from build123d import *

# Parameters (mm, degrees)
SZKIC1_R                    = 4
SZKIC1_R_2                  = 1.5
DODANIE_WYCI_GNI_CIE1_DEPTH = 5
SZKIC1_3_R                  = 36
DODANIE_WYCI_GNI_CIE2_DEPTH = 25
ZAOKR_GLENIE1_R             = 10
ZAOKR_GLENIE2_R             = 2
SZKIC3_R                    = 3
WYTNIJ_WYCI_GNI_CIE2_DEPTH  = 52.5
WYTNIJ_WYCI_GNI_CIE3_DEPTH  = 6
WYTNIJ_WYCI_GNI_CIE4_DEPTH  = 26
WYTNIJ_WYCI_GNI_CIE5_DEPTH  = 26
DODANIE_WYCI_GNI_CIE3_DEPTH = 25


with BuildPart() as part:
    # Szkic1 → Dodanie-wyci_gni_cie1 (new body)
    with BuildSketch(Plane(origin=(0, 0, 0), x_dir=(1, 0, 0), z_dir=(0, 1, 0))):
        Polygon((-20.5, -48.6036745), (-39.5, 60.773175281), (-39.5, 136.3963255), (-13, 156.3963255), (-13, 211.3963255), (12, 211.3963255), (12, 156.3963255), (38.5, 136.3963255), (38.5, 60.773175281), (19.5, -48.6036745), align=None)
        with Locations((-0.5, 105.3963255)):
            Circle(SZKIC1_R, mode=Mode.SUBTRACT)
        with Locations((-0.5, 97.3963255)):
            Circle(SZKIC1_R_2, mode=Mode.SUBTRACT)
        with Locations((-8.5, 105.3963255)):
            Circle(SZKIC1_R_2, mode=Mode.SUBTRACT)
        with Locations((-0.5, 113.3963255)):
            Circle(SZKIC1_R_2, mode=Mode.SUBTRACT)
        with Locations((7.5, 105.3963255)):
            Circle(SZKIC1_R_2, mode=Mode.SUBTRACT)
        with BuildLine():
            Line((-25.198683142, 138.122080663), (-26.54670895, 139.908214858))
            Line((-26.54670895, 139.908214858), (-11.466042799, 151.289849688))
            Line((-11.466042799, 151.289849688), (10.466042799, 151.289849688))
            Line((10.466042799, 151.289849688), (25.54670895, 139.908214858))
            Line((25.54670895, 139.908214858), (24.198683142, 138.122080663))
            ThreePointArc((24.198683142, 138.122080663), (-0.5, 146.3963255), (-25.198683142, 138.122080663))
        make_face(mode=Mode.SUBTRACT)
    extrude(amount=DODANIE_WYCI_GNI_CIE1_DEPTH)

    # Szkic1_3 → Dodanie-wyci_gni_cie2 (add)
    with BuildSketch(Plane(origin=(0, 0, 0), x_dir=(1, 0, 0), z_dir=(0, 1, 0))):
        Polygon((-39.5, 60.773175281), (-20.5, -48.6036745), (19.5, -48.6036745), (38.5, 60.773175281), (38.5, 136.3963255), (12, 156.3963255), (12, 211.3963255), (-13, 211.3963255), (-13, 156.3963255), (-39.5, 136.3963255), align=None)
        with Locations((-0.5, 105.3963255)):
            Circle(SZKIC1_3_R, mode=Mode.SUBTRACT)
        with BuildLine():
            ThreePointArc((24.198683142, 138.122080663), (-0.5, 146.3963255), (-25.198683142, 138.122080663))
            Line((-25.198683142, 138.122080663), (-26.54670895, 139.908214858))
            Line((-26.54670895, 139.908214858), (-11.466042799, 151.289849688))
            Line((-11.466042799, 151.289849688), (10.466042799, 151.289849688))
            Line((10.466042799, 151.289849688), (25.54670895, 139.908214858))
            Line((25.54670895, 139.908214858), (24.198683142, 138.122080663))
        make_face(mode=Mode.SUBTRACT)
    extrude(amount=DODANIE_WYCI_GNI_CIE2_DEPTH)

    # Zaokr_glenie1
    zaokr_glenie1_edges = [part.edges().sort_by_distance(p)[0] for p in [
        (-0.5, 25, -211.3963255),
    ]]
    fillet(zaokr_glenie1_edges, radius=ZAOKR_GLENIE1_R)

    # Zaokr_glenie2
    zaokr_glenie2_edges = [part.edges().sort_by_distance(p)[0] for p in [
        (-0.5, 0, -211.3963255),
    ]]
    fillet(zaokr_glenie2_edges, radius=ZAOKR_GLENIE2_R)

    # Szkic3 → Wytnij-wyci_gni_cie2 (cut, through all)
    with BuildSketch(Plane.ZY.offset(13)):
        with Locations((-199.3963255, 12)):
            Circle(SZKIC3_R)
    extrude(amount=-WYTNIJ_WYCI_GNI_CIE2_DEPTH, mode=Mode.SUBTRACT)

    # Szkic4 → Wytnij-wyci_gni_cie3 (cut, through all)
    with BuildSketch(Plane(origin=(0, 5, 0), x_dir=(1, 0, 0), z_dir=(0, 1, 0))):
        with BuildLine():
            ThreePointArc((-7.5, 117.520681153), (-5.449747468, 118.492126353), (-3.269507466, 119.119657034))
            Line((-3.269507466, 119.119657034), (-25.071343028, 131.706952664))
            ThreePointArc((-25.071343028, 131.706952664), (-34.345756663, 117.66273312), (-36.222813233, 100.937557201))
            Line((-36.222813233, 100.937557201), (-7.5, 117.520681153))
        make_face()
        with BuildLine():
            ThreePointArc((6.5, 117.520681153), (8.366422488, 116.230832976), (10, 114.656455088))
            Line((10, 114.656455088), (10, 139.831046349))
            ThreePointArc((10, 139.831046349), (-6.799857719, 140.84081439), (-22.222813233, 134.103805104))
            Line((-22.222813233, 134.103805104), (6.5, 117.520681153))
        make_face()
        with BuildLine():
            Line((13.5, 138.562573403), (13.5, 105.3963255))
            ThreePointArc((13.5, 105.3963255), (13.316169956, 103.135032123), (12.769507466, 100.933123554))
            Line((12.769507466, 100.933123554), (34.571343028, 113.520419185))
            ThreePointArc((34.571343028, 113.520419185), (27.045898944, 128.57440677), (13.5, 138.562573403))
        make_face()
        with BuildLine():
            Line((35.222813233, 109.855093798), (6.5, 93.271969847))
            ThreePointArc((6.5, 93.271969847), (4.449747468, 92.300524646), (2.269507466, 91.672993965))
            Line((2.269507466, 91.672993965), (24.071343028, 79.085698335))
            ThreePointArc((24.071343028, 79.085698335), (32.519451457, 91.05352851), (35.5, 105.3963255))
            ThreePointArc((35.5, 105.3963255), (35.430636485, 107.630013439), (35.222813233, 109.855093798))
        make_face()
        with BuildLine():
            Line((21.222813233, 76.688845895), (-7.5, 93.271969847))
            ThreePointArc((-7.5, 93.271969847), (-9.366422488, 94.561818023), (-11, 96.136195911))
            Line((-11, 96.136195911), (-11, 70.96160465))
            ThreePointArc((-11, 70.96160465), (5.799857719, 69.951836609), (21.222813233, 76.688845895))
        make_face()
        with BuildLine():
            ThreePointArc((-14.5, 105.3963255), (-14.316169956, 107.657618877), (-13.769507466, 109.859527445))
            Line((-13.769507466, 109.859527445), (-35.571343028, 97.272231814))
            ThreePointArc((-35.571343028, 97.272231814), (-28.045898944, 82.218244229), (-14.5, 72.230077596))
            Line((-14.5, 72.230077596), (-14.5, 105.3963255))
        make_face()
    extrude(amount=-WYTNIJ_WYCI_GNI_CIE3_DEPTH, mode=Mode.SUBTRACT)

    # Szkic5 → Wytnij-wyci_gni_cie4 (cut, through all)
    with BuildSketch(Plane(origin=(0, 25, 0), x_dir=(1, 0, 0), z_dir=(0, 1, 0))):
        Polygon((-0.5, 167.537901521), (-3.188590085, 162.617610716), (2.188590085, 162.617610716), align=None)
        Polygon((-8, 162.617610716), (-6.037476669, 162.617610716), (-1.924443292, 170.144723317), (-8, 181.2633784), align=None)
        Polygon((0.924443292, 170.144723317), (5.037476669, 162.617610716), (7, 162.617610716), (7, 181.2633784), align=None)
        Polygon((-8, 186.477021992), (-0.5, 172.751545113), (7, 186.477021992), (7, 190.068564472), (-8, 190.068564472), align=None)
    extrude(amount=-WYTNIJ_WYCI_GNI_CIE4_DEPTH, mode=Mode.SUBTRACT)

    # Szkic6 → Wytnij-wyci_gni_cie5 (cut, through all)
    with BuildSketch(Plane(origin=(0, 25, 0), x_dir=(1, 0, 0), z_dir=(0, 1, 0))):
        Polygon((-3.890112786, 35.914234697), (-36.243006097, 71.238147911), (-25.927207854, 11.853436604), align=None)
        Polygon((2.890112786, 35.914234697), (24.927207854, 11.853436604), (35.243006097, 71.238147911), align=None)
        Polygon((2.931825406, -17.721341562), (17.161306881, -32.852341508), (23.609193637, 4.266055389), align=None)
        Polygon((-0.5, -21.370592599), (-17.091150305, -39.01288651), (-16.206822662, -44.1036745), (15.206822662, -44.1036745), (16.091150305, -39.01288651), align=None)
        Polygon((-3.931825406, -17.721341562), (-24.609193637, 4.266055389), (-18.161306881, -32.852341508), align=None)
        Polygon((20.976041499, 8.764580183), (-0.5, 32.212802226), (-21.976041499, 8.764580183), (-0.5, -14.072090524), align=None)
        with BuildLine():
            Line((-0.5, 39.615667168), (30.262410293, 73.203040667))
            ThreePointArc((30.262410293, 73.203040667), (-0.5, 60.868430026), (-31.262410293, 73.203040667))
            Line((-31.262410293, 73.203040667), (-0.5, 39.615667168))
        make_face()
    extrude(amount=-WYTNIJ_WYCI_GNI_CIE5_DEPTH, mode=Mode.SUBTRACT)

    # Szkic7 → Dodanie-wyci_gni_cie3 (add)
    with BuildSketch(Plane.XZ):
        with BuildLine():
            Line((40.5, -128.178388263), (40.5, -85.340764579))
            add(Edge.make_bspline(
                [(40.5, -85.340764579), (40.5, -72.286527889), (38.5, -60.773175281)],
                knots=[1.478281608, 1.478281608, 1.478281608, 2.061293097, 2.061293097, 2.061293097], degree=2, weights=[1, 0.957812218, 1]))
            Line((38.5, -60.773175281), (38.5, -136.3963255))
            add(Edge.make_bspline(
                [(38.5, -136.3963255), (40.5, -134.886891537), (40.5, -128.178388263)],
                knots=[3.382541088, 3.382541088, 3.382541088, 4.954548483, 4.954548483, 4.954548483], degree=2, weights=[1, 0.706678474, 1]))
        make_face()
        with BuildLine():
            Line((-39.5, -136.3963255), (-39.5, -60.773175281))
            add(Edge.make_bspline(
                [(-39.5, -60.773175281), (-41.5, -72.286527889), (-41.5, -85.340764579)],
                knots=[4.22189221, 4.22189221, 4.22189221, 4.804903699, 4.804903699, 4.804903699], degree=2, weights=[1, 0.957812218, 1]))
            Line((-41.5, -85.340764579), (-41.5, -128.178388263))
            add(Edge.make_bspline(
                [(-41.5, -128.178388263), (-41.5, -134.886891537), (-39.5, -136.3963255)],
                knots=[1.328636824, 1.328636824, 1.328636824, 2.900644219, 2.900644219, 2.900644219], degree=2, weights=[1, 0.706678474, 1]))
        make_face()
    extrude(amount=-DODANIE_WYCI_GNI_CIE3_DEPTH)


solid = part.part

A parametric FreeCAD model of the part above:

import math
import FreeCAD as App
import Part
import Sketcher
from FreeCAD import Vector
Q = App.Units.Quantity


def edges_at(feature, points):
    """Names of the edges that pass closest to the given points."""
    edges = feature.Shape.Edges
    near = lambda p: min(range(len(edges)), key=lambda i: edges[i].distToShape(Part.Vertex(*p))[0])
    return sorted({f"Edge{near(p) + 1}" for p in points})


def add_polygon(sketch, points):
    """Adds a closed chain of lines whose ends are joined by coincident constraints."""
    first, n = sketch.GeometryCount, len(points)
    for a, b in zip(points, points[1:] + points[:1]):
        sketch.addGeometry(Part.LineSegment(App.Vector(*a, 0), App.Vector(*b, 0)), False)
    for i in range(n):
        sketch.addConstraint(Sketcher.Constraint("Coincident", first + i, 2, first + (i + 1) % n, 1))

doc = App.newDocument("Part")
body = doc.addObject("PartDesign::Body", "Body")

sketch1 = body.newObject("Sketcher::SketchObject", "Sketch")
sketch1.AttachmentSupport = (doc.getObject("XZ_Plane"), [""])
sketch1.MapMode = "FlatFace"
add_polygon(sketch1, [(-39.5, -60.773175), (-20.5, 48.603674), (19.5, 48.603674), (38.5, -60.773175), (38.5, -136.396325), (12, -156.396325), (12, -211.396325), (-13, -211.396325), (-13, -156.396325), (-39.5, -136.396325)])
sketch1.addGeometry(Part.Circle(Vector(-0.5, -97.396326, 0), Vector(0, 0, 1), 1.5), False)
sketch1.addGeometry(Part.Circle(Vector(7.5, -105.396326, 0), Vector(0, 0, 1), 1.5), False)
sketch1.addGeometry(Part.Circle(Vector(-0.5, -105.396326, 0), Vector(0, 0, 1), 4), False)
sketch1.addGeometry(Part.Circle(Vector(-0.5, -113.396326, 0), Vector(0, 0, 1), 1.5), False)
sketch1.addGeometry(Part.Circle(Vector(-8.5, -105.396326, 0), Vector(0, 0, 1), 1.5), False)
sketch1.addGeometry(Part.LineSegment(Vector(-25.198683, -138.122081, 0), Vector(-26.546709, -139.908215, 0)), False)
sketch1.addGeometry(Part.LineSegment(Vector(-26.546709, -139.908215, 0), Vector(-11.466043, -151.28985, 0)), False)
sketch1.addGeometry(Part.LineSegment(Vector(-11.466043, -151.28985, 0), Vector(10.466043, -151.28985, 0)), False)
sketch1.addGeometry(Part.LineSegment(Vector(10.466043, -151.28985, 0), Vector(25.546709, -139.908215, 0)), False)
sketch1.addGeometry(Part.LineSegment(Vector(25.546709, -139.908215, 0), Vector(24.198683, -138.122081, 0)), False)
sketch1.addGeometry(Part.ArcOfCircle(Part.Circle(Vector(-0.5, -105.396326, 0), Vector(0, 0, 1), 41), math.radians(-127.042475), math.radians(-52.957525)), False)
sketch1.addConstraint([
    Sketcher.Constraint("Coincident", 15, 2, 16, 1),
    Sketcher.Constraint("Coincident", 16, 2, 17, 1),
    Sketcher.Constraint("Coincident", 17, 2, 18, 1),
    Sketcher.Constraint("Coincident", 18, 2, 19, 1),
    Sketcher.Constraint("Coincident", 19, 2, 20, 2),
    Sketcher.Constraint("Coincident", 20, 1, 15, 1),
    Sketcher.Constraint("Horizontal", 1),
    Sketcher.Constraint("Vertical", 3),
    Sketcher.Constraint("Vertical", 5),
    Sketcher.Constraint("Horizontal", 6),
    Sketcher.Constraint("Vertical", 7),
    Sketcher.Constraint("Vertical", 9),
    Sketcher.Constraint("Horizontal", 17),
    Sketcher.Constraint("Coincident", 20, 3, 12, 3),
    Sketcher.Constraint("Equal", 10, 11),
    Sketcher.Constraint("Equal", 11, 13),
    Sketcher.Constraint("Equal", 13, 14),
    Sketcher.Constraint("Perpendicular", 8, 15),
    Sketcher.Constraint("Perpendicular", 15, 16),
    Sketcher.Constraint("Parallel", 4, 18),
    Sketcher.Constraint("Perpendicular", 18, 19),
    Sketcher.Constraint("Horizontal", 11, 3, 12, 3),
    Sketcher.Constraint("Horizontal", 12, 3, 14, 3),
    Sketcher.Constraint("Horizontal", 4, 2, 7, 2),
    Sketcher.Constraint("Horizontal", 3, 2, 8, 2),
    Sketcher.Constraint("Horizontal", 2, 2, 9, 2),
    Sketcher.Constraint("Horizontal", 15, 2, 18, 2),
    Sketcher.Constraint("Horizontal", 19, 2, 20, 1),
    Sketcher.Constraint("Vertical", 10, 3, 12, 3),
    Sketcher.Constraint("Vertical", 12, 3, 13, 3),
    Sketcher.Constraint("Equal", 0, 2),
    Sketcher.Constraint("Equal", 4, 8),
    Sketcher.Constraint("Diameter", 10, 3.0),
    Sketcher.Constraint("Diameter", 12, 8.0),
    Sketcher.Constraint("Radius", 20, 41.0),
    Sketcher.Constraint("DistanceX", 1, 1, 1, 2, 40.0),
    Sketcher.Constraint("DistanceX", 6, 2, 6, 1, 25.0),
    Sketcher.Constraint("DistanceY", 5, 2, 5, 1, 55.0),
    Sketcher.Constraint("DistanceX", -1, 1, 4, 2, 12.0),
    Sketcher.Constraint("DistanceX", 10, 3, 11, 3, 8.0),
    Sketcher.Constraint("DistanceY", 11, 3, 10, 3, 8.0),
    Sketcher.Constraint("DistanceY", 13, 3, 12, 3, 8.0),
    Sketcher.Constraint("DistanceX", 14, 3, 12, 3, 8.0),
    Sketcher.Constraint("DistanceX", 0, 2, 10, 3, 20.0),
    Sketcher.Constraint("DistanceY", 10, 3, 0, 2, 146.0),
    Sketcher.Constraint("DistanceX", 10, 3, 2, 2, 39.0),
    Sketcher.Constraint("DistanceY", 3, 2, 11, 3, 31.0),
    Sketcher.Constraint("DistanceY", 4, 2, 3, 2, 20.0),
    Sketcher.Constraint("Distance", 16, 18.8936),
    Sketcher.Constraint("DistanceY", 3, 2, 3, 1, 75.62315),
    Sketcher.Constraint("DistanceX", 17, 1, 17, 2, 21.932086),
    Sketcher.Constraint("DistanceY", 16, 2, -1, 1, 151.28985),
    Sketcher.Constraint("DistanceY", 19, 2, -1, 1, 138.122081),
])
pad1 = body.newObject("PartDesign::Pad", "Pad")
pad1.Profile = sketch1
pad1.Length = 5
pad1.Reversed = True

sketch2 = body.newObject("Sketcher::SketchObject", "Sketch001")
sketch2.AttachmentSupport = (doc.getObject("XZ_Plane"), [""])
sketch2.MapMode = "FlatFace"
add_polygon(sketch2, [(-39.5, -60.773175), (-20.5, 48.603674), (19.5, 48.603674), (38.5, -60.773175), (38.5, -136.396325), (12, -156.396325), (12, -211.396325), (-13, -211.396325), (-13, -156.396325), (-39.5, -136.396325)])
sketch2.addGeometry(Part.Circle(Vector(-0.5, -105.396326, 0), Vector(0, 0, 1), 36), False)
sketch2.addGeometry(Part.LineSegment(Vector(25.546709, -139.908215, 0), Vector(24.198683, -138.122081, 0)), False)
sketch2.addGeometry(Part.ArcOfCircle(Part.Circle(Vector(-0.5, -105.396326, 0), Vector(0, 0, 1), 41), math.radians(-127.042475), math.radians(-52.957525)), False)
sketch2.addGeometry(Part.LineSegment(Vector(-25.198683, -138.122081, 0), Vector(-26.546709, -139.908215, 0)), False)
sketch2.addGeometry(Part.LineSegment(Vector(-26.546709, -139.908215, 0), Vector(-11.466043, -151.28985, 0)), False)
sketch2.addGeometry(Part.LineSegment(Vector(-11.466043, -151.28985, 0), Vector(10.466043, -151.28985, 0)), False)
sketch2.addGeometry(Part.LineSegment(Vector(10.466043, -151.28985, 0), Vector(25.546709, -139.908215, 0)), False)
sketch2.addConstraint([
    Sketcher.Constraint("Coincident", 11, 2, 12, 2),
    Sketcher.Constraint("Coincident", 12, 1, 13, 1),
    Sketcher.Constraint("Coincident", 13, 2, 14, 1),
    Sketcher.Constraint("Coincident", 14, 2, 15, 1),
    Sketcher.Constraint("Coincident", 15, 2, 16, 1),
    Sketcher.Constraint("Coincident", 16, 2, 11, 1),
    Sketcher.Constraint("Horizontal", 1),
    Sketcher.Constraint("Vertical", 3),
    Sketcher.Constraint("Vertical", 5),
    Sketcher.Constraint("Horizontal", 6),
    Sketcher.Constraint("Vertical", 7),
    Sketcher.Constraint("Vertical", 9),
    Sketcher.Constraint("Horizontal", 15),
    Sketcher.Constraint("Coincident", 12, 3, 10, 3),
    Sketcher.Constraint("Perpendicular", 4, 11),
    Sketcher.Constraint("Perpendicular", 8, 13),
    Sketcher.Constraint("Perpendicular", 13, 14),
    Sketcher.Constraint("Perpendicular", 11, 16),
    Sketcher.Constraint("Horizontal", 4, 2, 7, 2),
    Sketcher.Constraint("Horizontal", 3, 2, 8, 2),
    Sketcher.Constraint("Horizontal", 2, 2, 9, 2),
    Sketcher.Constraint("Horizontal", 11, 2, 12, 1),
    Sketcher.Constraint("Horizontal", 13, 2, 16, 2),
    Sketcher.Constraint("Equal", 0, 2),
    Sketcher.Constraint("Equal", 4, 8),
    Sketcher.Constraint("Diameter", 10, 72.0),
    Sketcher.Constraint("Radius", 12, 41.0),
    Sketcher.Constraint("DistanceX", 1, 1, 1, 2, 40.0),
    Sketcher.Constraint("DistanceX", 6, 2, 6, 1, 25.0),
    Sketcher.Constraint("DistanceY", 5, 2, 5, 1, 55.0),
    Sketcher.Constraint("DistanceX", -1, 1, 4, 2, 12.0),
    Sketcher.Constraint("DistanceX", 0, 2, 10, 3, 20.0),
    Sketcher.Constraint("DistanceY", 10, 3, 0, 2, 154.0),
    Sketcher.Constraint("DistanceX", 10, 3, 2, 2, 39.0),
    Sketcher.Constraint("DistanceY", 3, 2, 12, 3, 31.0),
    Sketcher.Constraint("DistanceY", 4, 2, 3, 2, 20.0),
    Sketcher.Constraint("Distance", 14, 18.8936),
    Sketcher.Constraint("DistanceY", 3, 2, 3, 1, 75.62315),
    Sketcher.Constraint("DistanceX", 15, 1, 15, 2, 21.932086),
    Sketcher.Constraint("DistanceY", 11, 2, -1, 1, 138.122081),
    Sketcher.Constraint("DistanceY", 14, 2, -1, 1, 151.28985),
])
pad2 = body.newObject("PartDesign::Pad", "Pad001")
pad2.Profile = sketch2
pad2.Length = 25
pad2.Reversed = True
doc.recompute()

fillet = body.newObject("PartDesign::Fillet", "Fillet")
fillet.Base = (pad2, edges_at(pad2, [(-0.5, 25, -211.396)]))
fillet.Radius = 10
doc.recompute()

fillet2 = body.newObject("PartDesign::Fillet", "Fillet001")
fillet2.Base = (fillet, edges_at(fillet, [(-0.5, 0, -211.396)]))
fillet2.Radius = 2

sketch3 = body.newObject("Sketcher::SketchObject", "Sketch002")
sketch3.AttachmentSupport = (doc.getObject("YZ_Plane"), [""])
sketch3.MapMode = "FlatFace"
sketch3.AttachmentOffset = App.Placement(Vector(0, 0, -13), App.Rotation())
sketch3.addGeometry(Part.Circle(Vector(12, -199.396325, 0), Vector(0, 0, 1), 3), False)
sketch3.addConstraint([
    Sketcher.Constraint("Diameter", 0, 6.0),
    Sketcher.Constraint("DistanceX", -1, 1, 0, 3, 12.0),
    Sketcher.Constraint("DistanceY", 0, 3, -1, 1, 199.396325),
])
pocket1 = body.newObject("PartDesign::Pocket", "Pocket")
pocket1.Profile = sketch3
pocket1.Type = "ThroughAll"
pocket1.Reversed = True

sketch4 = body.newObject("Sketcher::SketchObject", "Sketch003")
sketch4.AttachmentSupport = (doc.getObject("XZ_Plane"), [""])
sketch4.MapMode = "FlatFace"
sketch4.AttachmentOffset = App.Placement(Vector(0, 0, -5), App.Rotation())
sketch4.addGeometry([
    Part.ArcOfCircle(Part.Circle(Vector(-0.5, -105.396325, 0), Vector(0, 0, 1), 14), math.radians(-120), math.radians(-101.409622)),
    Part.LineSegment(Vector(-3.269507, -119.119657, 0), Vector(-25.071343, -131.706953, 0)),
    Part.ArcOfCircle(Part.Circle(Vector(-0.5, -105.396325, 0), Vector(0, 0, 1), 36), math.radians(172.88538), math.radians(226.957763)),
    Part.LineSegment(Vector(-36.222813, -100.937557, 0), Vector(-7.5, -117.520681, 0)),
    Part.ArcOfCircle(Part.Circle(Vector(-0.5, -105.396325, 0), Vector(0, 0, 1), 14), math.radians(-60), math.radians(-41.409622)),
    Part.LineSegment(Vector(10, -114.656455, 0), Vector(10, -139.831046, 0)),
    Part.ArcOfCircle(Part.Circle(Vector(-0.5, -105.396325, 0), Vector(0, 0, 1), 36), math.radians(-127.11462), math.radians(-73.042237)),
    Part.LineSegment(Vector(-22.222813, -134.103805, 0), Vector(6.5, -117.520681, 0)),
    Part.LineSegment(Vector(13.5, -138.562573, 0), Vector(13.5, -105.396326, 0)),
    Part.ArcOfCircle(Part.Circle(Vector(-0.5, -105.396326, 0), Vector(0, 0, 1), 14), math.radians(0), math.radians(18.590378)),
    Part.LineSegment(Vector(12.769507, -100.933124, 0), Vector(34.571343, -113.520419, 0)),
    Part.ArcOfCircle(Part.Circle(Vector(-0.5, -105.396326, 0), Vector(0, 0, 1), 36), math.radians(-67.11462), math.radians(-13.042237)),
    Part.LineSegment(Vector(35.222813, -109.855094, 0), Vector(6.5, -93.27197, 0)),
    Part.ArcOfCircle(Part.Circle(Vector(-0.5, -105.396326, 0), Vector(0, 0, 1), 14), math.radians(60), math.radians(78.590378)),
    Part.LineSegment(Vector(2.269507, -91.672994, 0), Vector(24.071343, -79.085698, 0)),
    Part.ArcOfCircle(Part.Circle(Vector(-0.5, -105.396325, 0), Vector(0, 0, 1), 36), math.radians(0), math.radians(46.957763)),
    Part.ArcOfCircle(Part.Circle(Vector(-0.5, -105.396326, 0), Vector(0, 0, 1), 36), math.radians(-7.11462), math.radians(0)),
    Part.LineSegment(Vector(21.222813, -76.688846, 0), Vector(-7.5, -93.27197, 0)),
    Part.ArcOfCircle(Part.Circle(Vector(-0.5, -105.396325, 0), Vector(0, 0, 1), 14), math.radians(120), math.radians(138.590378)),
    Part.LineSegment(Vector(-11, -96.136196, 0), Vector(-11, -70.961605, 0)),
    Part.ArcOfCircle(Part.Circle(Vector(-0.5, -105.396326, 0), Vector(0, 0, 1), 36), math.radians(52.88538), math.radians(106.957763)),
    Part.ArcOfCircle(Part.Circle(Vector(-0.5, -105.396325, 0), Vector(0, 0, 1), 14), math.radians(-180), math.radians(-161.409622)),
    Part.LineSegment(Vector(-13.769507, -109.859527, 0), Vector(-35.571343, -97.272232, 0)),
    Part.ArcOfCircle(Part.Circle(Vector(-0.5, -105.396325, 0), Vector(0, 0, 1), 36), math.radians(112.88538), math.radians(166.957763)),
    Part.LineSegment(Vector(-14.5, -72.230078, 0), Vector(-14.5, -105.396326, 0)),
], False)
sketch4.addConstraint([
    Sketcher.Constraint("Coincident", 0, 2, 1, 1),
    Sketcher.Constraint("Coincident", 1, 2, 2, 2),
    Sketcher.Constraint("Coincident", 2, 1, 3, 1),
    Sketcher.Constraint("Tangent", 3, 2, 0, 1),
    Sketcher.Constraint("Coincident", 4, 2, 5, 1),
    Sketcher.Constraint("Coincident", 5, 2, 6, 2),
    Sketcher.Constraint("Coincident", 6, 1, 7, 1),
    Sketcher.Constraint("Tangent", 7, 2, 4, 1),
    Sketcher.Constraint("Tangent", 8, 2, 9, 1),
    Sketcher.Constraint("Coincident", 9, 2, 10, 1),
    Sketcher.Constraint("Coincident", 10, 2, 11, 2),
    Sketcher.Constraint("Coincident", 11, 1, 8, 1),
    Sketcher.Constraint("Tangent", 12, 2, 13, 1),
    Sketcher.Constraint("Coincident", 13, 2, 14, 1),
    Sketcher.Constraint("Coincident", 14, 2, 15, 2),
    Sketcher.Constraint("Tangent", 15, 1, 16, 2),
    Sketcher.Constraint("Coincident", 16, 1, 12, 1),
    Sketcher.Constraint("Tangent", 17, 2, 18, 1),
    Sketcher.Constraint("Coincident", 18, 2, 19, 1),
    Sketcher.Constraint("Coincident", 19, 2, 20, 2),
    Sketcher.Constraint("Coincident", 20, 1, 17, 1),
    Sketcher.Constraint("Coincident", 21, 2, 22, 1),
    Sketcher.Constraint("Coincident", 22, 2, 23, 2),
    Sketcher.Constraint("Coincident", 23, 1, 24, 1),
    Sketcher.Constraint("Tangent", 24, 2, 21, 1),
    Sketcher.Constraint("Vertical", 5),
    Sketcher.Constraint("Vertical", 8),
    Sketcher.Constraint("Vertical", 19),
    Sketcher.Constraint("Vertical", 24),
    Sketcher.Constraint("Coincident", 2, 3, 0, 3),
    Sketcher.Constraint("Coincident", 4, 3, 0, 3),
    Sketcher.Constraint("Coincident", 6, 3, 0, 3),
    Sketcher.Constraint("Coincident", 9, 3, 0, 3),
    Sketcher.Constraint("Coincident", 11, 3, 0, 3),
    Sketcher.Constraint("Coincident", 13, 3, 0, 3),
    Sketcher.Constraint("Coincident", 15, 3, 0, 3),
    Sketcher.Constraint("Coincident", 18, 3, 0, 3),
    Sketcher.Constraint("Coincident", 20, 3, 0, 3),
    Sketcher.Constraint("Coincident", 21, 3, 0, 3),
    Sketcher.Constraint("Coincident", 23, 3, 0, 3),
    Sketcher.Constraint("Equal", 0, 4),
    Sketcher.Constraint("Equal", 2, 6),
    Sketcher.Constraint("Equal", 4, 9),
    Sketcher.Constraint("Equal", 6, 11),
    Sketcher.Constraint("Equal", 9, 13),
    Sketcher.Constraint("Equal", 11, 15),
    Sketcher.Constraint("Equal", 15, 16),
    Sketcher.Constraint("Equal", 13, 18),
    Sketcher.Constraint("Equal", 16, 20),
    Sketcher.Constraint("Equal", 18, 21),
    Sketcher.Constraint("Equal", 20, 23),
    Sketcher.Constraint("Parallel", 1, 7),
    Sketcher.Constraint("Parallel", 3, 10),
    Sketcher.Constraint("Parallel", 10, 12),
    Sketcher.Constraint("Parallel", 7, 14),
    Sketcher.Constraint("Parallel", 14, 17),
    Sketcher.Constraint("Parallel", 12, 22),
    Sketcher.Constraint("Horizontal", 3, 2, 7, 2),
    Sketcher.Constraint("Horizontal", 8, 2, 15, 1),
    Sketcher.Constraint("Equal", 5, 19),
    Sketcher.Constraint("Equal", 1, 10),
    Sketcher.Constraint("Equal", 10, 14),
    Sketcher.Constraint("Equal", 14, 22),
    Sketcher.Constraint("Radius", 0, 14.0),
    Sketcher.Constraint("Radius", 2, 36.0),
    Sketcher.Constraint("Angle", 1, Q("-150 deg")),
    Sketcher.Constraint("DistanceX", -1, 1, 4, 2, 10.0),
    Sketcher.Constraint("DistanceX", 18, 2, -1, 1, 11.0),
    Sketcher.Constraint("DistanceY", 14, 2, -1, 1, 79.085698),
    Sketcher.Constraint("DistanceY", 8, 2, 9, 2, 4.463202),
])
pocket2 = body.newObject("PartDesign::Pocket", "Pocket001")
pocket2.Profile = sketch4
pocket2.Type = "ThroughAll"
pocket2.Reversed = True

sketch5 = body.newObject("Sketcher::SketchObject", "Sketch004")
sketch5.AttachmentSupport = (doc.getObject("XZ_Plane"), [""])
sketch5.MapMode = "FlatFace"
sketch5.AttachmentOffset = App.Placement(Vector(0, 0, -25), App.Rotation())
add_polygon(sketch5, [(-0.5, -167.537902), (-3.18859, -162.617611), (2.18859, -162.617611)])
add_polygon(sketch5, [(-8, -162.617611), (-6.037477, -162.617611), (-1.924443, -170.144723), (-8, -181.263378)])
add_polygon(sketch5, [(0.924443, -170.144723), (5.037477, -162.617611), (7, -162.617611), (7, -181.263378)])
add_polygon(sketch5, [(-8, -186.477022), (-0.5, -172.751545), (7, -186.477022), (7, -190.068564), (-8, -190.068564)])
sketch5.addConstraint([
    Sketcher.Constraint("Horizontal", 1),
    Sketcher.Constraint("Horizontal", 3),
    Sketcher.Constraint("Vertical", 6),
    Sketcher.Constraint("Horizontal", 8),
    Sketcher.Constraint("Vertical", 9),
    Sketcher.Constraint("Vertical", 13),
    Sketcher.Constraint("Horizontal", 14),
    Sketcher.Constraint("Vertical", 15),
    Sketcher.Constraint("Parallel", 0, 4),
    Sketcher.Constraint("Parallel", 2, 5),
    Sketcher.Constraint("Parallel", 5, 7),
    Sketcher.Constraint("Parallel", 4, 10),
    Sketcher.Constraint("Parallel", 7, 11),
    Sketcher.Constraint("Parallel", 10, 12),
    Sketcher.Constraint("Horizontal", 1, 2, 3, 2),
    Sketcher.Constraint("Horizontal", 6, 2, 7, 2),
    Sketcher.Constraint("Horizontal", 5, 2, 9, 2),
    Sketcher.Constraint("Horizontal", 4, 2, 10, 2),
    Sketcher.Constraint("Horizontal", 12, 2, 15, 2),
    Sketcher.Constraint("Vertical", 2, 2, 11, 2),
    Sketcher.Constraint("Vertical", 9, 2, 12, 2),
    Sketcher.Constraint("Vertical", 6, 2, 14, 2),
    Sketcher.Constraint("Equal", 3, 8),
    Sketcher.Constraint("DistanceX", 14, 2, 14, 1, 15.0),
    Sketcher.Constraint("DistanceX", 5, 2, -1, 1, 8.0),
    Sketcher.Constraint("DistanceX", 1, 1, 1, 2, 5.37718),
    Sketcher.Constraint("DistanceY", 2, 2, -1, 1, 167.537902),
    Sketcher.Constraint("DistanceY", 12, 2, 10, 2, 16.332299),
    Sketcher.Constraint("Distance", 0, 5.60694),
    Sketcher.Constraint("DistanceX", 3, 1, 3, 2, 1.962523),
    Sketcher.Constraint("DistanceY", 6, 1, 6, 2, 18.645768),
    Sketcher.Constraint("DistanceY", 13, 2, 13, 1, 3.591542),
])
pocket3 = body.newObject("PartDesign::Pocket", "Pocket002")
pocket3.Profile = sketch5
pocket3.Type = "ThroughAll"
pocket3.Reversed = True

sketch6 = body.newObject("Sketcher::SketchObject", "Sketch005")
sketch6.AttachmentSupport = (doc.getObject("XZ_Plane"), [""])
sketch6.MapMode = "FlatFace"
sketch6.AttachmentOffset = App.Placement(Vector(0, 0, -25), App.Rotation())
add_polygon(sketch6, [(-3.890113, -35.914235), (-36.243006, -71.238148), (-25.927208, -11.853437)])
add_polygon(sketch6, [(2.890113, -35.914235), (24.927208, -11.853437), (35.243006, -71.238148)])
add_polygon(sketch6, [(2.931825, 17.721342), (17.161307, 32.852342), (23.609194, -4.266055)])
add_polygon(sketch6, [(-0.5, 21.370593), (-17.09115, 39.012887), (-16.206823, 44.103674), (15.206823, 44.103674), (16.09115, 39.012887)])
add_polygon(sketch6, [(-3.931825, 17.721342), (-24.609194, -4.266055), (-18.161307, 32.852342)])
add_polygon(sketch6, [(20.976041, -8.76458), (-0.5, -32.212802), (-21.976041, -8.76458), (-0.5, 14.072091)])
sketch6.addGeometry(Part.LineSegment(Vector(-0.5, -39.615667, 0), Vector(30.26241, -73.203041, 0)), False)
sketch6.addGeometry(Part.ArcOfCircle(Part.Circle(Vector(-0.5, -105.396326, 0), Vector(0, 0, 1), 44.527895), math.radians(46.30201), math.radians(133.69799)), False)
sketch6.addGeometry(Part.LineSegment(Vector(-31.26241, -73.203041, 0), Vector(-0.5, -39.615667, 0)), False)
sketch6.addConstraint([
    Sketcher.Constraint("Coincident", 21, 2, 22, 1),
    Sketcher.Constraint("Coincident", 22, 2, 23, 1),
    Sketcher.Constraint("Coincident", 23, 2, 21, 1),
    Sketcher.Constraint("Horizontal", 11),
    Sketcher.Constraint("Parallel", 0, 3),
    Sketcher.Constraint("Parallel", 2, 5),
    Sketcher.Constraint("Parallel", 4, 7),
    Sketcher.Constraint("Parallel", 8, 9),
    Sketcher.Constraint("Parallel", 1, 10),
    Sketcher.Constraint("Parallel", 7, 12),
    Sketcher.Constraint("Parallel", 6, 13),
    Sketcher.Constraint("Parallel", 13, 14),
    Sketcher.Constraint("Parallel", 10, 15),
    Sketcher.Constraint("Parallel", 9, 16),
    Sketcher.Constraint("Parallel", 3, 17),
    Sketcher.Constraint("Parallel", 5, 18),
    Sketcher.Constraint("Parallel", 14, 19),
    Sketcher.Constraint("Parallel", 16, 20),
    Sketcher.Constraint("Parallel", 18, 21),
    Sketcher.Constraint("Parallel", 17, 23),
    Sketcher.Constraint("Horizontal", 1, 2, 3, 2),
    Sketcher.Constraint("Horizontal", 0, 2, 4, 2),
    Sketcher.Constraint("Horizontal", 2, 2, 5, 2),
    Sketcher.Constraint("Horizontal", 9, 2, 12, 2),
    Sketcher.Constraint("Horizontal", 7, 2, 14, 2),
    Sketcher.Constraint("Horizontal", 6, 2, 15, 2),
    Sketcher.Constraint("Horizontal", 8, 2, 16, 2),
    Sketcher.Constraint("Horizontal", 18, 2, 20, 2),
    Sketcher.Constraint("Horizontal", 21, 2, 22, 2),
    Sketcher.Constraint("Vertical", 22, 3, 13, 2),
    Sketcher.Constraint("Vertical", 13, 2, 17, 2),
    Sketcher.Constraint("Vertical", 17, 2, 19, 2),
    Sketcher.Constraint("DistanceX", 22, 3, -1, 1, 0.5),
    Sketcher.Constraint("Radius", 22, 44.527895),
    Sketcher.Constraint("DistanceY", 8, 2, 6, 2, 15.131),
    Sketcher.Constraint("DistanceX", 0, 2, 1, 2, 10.315798),
    Sketcher.Constraint("DistanceY", 2, 2, 1, 2, 24.060798),
    Sketcher.Constraint("DistanceX", 6, 2, 3, 2, 7.765901),
    Sketcher.Constraint("DistanceX", 1, 2, 7, 2, 49.536401),
    Sketcher.Constraint("DistanceX", 9, 2, 12, 2, 33.182301),
    Sketcher.Constraint("Distance", 0, 47.90082),
    Sketcher.Constraint("Distance", 6, 20.77078),
    Sketcher.Constraint("DistanceX", 11, 1, 11, 2, 31.413645),
    Sketcher.Constraint("DistanceY", -1, 1, 6, 2, 32.852342),
    Sketcher.Constraint("DistanceX", 18, 2, -1, 1, 21.976041),
    Sketcher.Constraint("DistanceY", 18, 2, -1, 1, 8.76458),
    Sketcher.Constraint("DistanceX", -1, 1, 21, 2, 30.26241),
    Sketcher.Constraint("DistanceY", 21, 2, -1, 1, 73.203041),
    Sketcher.Constraint("DistanceY", 22, 3, 1, 2, 93.542889),
    Sketcher.Constraint("DistanceY", 7, 2, 9, 2, 43.278942),
    Sketcher.Constraint("DistanceX", 9, 2, 3, 2, 42.018358),
    Sketcher.Constraint("DistanceX", 14, 2, 8, 2, 27.541019),
])
pocket4 = body.newObject("PartDesign::Pocket", "Pocket003")
pocket4.Profile = sketch6
pocket4.Type = "ThroughAll"
pocket4.Reversed = True

sketch7 = body.newObject("Sketcher::SketchObject", "Sketch006")
sketch7.AttachmentSupport = (doc.getObject("XZ_Plane"), [""])
sketch7.MapMode = "FlatFace"
sketch7.addGeometry([
    Part.LineSegment(Vector(40.5, -128.178388, 0), Vector(40.5, -85.340765, 0)),
    Part.BSplineCurve([Vector(40.5, -85.340765, 0), Vector(40.5, -72.286528, 0), Vector(38.5, -60.773175, 0)], [3, 3], [1.478281608, 2.061293097], False, 2, [1, 0.957812218, 1], False),
    Part.LineSegment(Vector(38.5, -60.773175, 0), Vector(38.5, -136.396325, 0)),
    Part.BSplineCurve([Vector(38.5, -136.396325, 0), Vector(40.5, -134.886892, 0), Vector(40.5, -128.178388, 0)], [3, 3], [3.382541088, 4.954548483], False, 2, [1, 0.706678474, 1], False),
    Part.LineSegment(Vector(-39.5, -136.396325, 0), Vector(-39.5, -60.773175, 0)),
    Part.BSplineCurve([Vector(-39.5, -60.773175, 0), Vector(-41.5, -72.286528, 0), Vector(-41.5, -85.340765, 0)], [3, 3], [4.22189221, 4.804903699], False, 2, [1, 0.957812218, 1], False),
    Part.LineSegment(Vector(-41.5, -85.340765, 0), Vector(-41.5, -128.178388, 0)),
    Part.BSplineCurve([Vector(-41.5, -128.178388, 0), Vector(-41.5, -134.886892, 0), Vector(-39.5, -136.396325, 0)], [3, 3], [1.328636824, 2.900644219], False, 2, [1, 0.706678474, 1], False),
], False)
sketch7.addConstraint([
    Sketcher.Constraint("Block", 1),
    Sketcher.Constraint("Block", 3),
    Sketcher.Constraint("Block", 5),
    Sketcher.Constraint("Block", 7),
    Sketcher.Constraint("Coincident", 0, 2, 1, 1),
    Sketcher.Constraint("Coincident", 1, 2, 2, 1),
    Sketcher.Constraint("Coincident", 2, 2, 3, 1),
    Sketcher.Constraint("Coincident", 3, 2, 0, 1),
    Sketcher.Constraint("Coincident", 4, 2, 5, 1),
    Sketcher.Constraint("Coincident", 5, 2, 6, 1),
    Sketcher.Constraint("Coincident", 6, 2, 7, 1),
    Sketcher.Constraint("Coincident", 7, 2, 4, 1),
])
pad3 = body.newObject("PartDesign::Pad", "Pad002")
pad3.Profile = sketch7
pad3.Length = 25
pad3.Reversed = True

doc.recompute()
